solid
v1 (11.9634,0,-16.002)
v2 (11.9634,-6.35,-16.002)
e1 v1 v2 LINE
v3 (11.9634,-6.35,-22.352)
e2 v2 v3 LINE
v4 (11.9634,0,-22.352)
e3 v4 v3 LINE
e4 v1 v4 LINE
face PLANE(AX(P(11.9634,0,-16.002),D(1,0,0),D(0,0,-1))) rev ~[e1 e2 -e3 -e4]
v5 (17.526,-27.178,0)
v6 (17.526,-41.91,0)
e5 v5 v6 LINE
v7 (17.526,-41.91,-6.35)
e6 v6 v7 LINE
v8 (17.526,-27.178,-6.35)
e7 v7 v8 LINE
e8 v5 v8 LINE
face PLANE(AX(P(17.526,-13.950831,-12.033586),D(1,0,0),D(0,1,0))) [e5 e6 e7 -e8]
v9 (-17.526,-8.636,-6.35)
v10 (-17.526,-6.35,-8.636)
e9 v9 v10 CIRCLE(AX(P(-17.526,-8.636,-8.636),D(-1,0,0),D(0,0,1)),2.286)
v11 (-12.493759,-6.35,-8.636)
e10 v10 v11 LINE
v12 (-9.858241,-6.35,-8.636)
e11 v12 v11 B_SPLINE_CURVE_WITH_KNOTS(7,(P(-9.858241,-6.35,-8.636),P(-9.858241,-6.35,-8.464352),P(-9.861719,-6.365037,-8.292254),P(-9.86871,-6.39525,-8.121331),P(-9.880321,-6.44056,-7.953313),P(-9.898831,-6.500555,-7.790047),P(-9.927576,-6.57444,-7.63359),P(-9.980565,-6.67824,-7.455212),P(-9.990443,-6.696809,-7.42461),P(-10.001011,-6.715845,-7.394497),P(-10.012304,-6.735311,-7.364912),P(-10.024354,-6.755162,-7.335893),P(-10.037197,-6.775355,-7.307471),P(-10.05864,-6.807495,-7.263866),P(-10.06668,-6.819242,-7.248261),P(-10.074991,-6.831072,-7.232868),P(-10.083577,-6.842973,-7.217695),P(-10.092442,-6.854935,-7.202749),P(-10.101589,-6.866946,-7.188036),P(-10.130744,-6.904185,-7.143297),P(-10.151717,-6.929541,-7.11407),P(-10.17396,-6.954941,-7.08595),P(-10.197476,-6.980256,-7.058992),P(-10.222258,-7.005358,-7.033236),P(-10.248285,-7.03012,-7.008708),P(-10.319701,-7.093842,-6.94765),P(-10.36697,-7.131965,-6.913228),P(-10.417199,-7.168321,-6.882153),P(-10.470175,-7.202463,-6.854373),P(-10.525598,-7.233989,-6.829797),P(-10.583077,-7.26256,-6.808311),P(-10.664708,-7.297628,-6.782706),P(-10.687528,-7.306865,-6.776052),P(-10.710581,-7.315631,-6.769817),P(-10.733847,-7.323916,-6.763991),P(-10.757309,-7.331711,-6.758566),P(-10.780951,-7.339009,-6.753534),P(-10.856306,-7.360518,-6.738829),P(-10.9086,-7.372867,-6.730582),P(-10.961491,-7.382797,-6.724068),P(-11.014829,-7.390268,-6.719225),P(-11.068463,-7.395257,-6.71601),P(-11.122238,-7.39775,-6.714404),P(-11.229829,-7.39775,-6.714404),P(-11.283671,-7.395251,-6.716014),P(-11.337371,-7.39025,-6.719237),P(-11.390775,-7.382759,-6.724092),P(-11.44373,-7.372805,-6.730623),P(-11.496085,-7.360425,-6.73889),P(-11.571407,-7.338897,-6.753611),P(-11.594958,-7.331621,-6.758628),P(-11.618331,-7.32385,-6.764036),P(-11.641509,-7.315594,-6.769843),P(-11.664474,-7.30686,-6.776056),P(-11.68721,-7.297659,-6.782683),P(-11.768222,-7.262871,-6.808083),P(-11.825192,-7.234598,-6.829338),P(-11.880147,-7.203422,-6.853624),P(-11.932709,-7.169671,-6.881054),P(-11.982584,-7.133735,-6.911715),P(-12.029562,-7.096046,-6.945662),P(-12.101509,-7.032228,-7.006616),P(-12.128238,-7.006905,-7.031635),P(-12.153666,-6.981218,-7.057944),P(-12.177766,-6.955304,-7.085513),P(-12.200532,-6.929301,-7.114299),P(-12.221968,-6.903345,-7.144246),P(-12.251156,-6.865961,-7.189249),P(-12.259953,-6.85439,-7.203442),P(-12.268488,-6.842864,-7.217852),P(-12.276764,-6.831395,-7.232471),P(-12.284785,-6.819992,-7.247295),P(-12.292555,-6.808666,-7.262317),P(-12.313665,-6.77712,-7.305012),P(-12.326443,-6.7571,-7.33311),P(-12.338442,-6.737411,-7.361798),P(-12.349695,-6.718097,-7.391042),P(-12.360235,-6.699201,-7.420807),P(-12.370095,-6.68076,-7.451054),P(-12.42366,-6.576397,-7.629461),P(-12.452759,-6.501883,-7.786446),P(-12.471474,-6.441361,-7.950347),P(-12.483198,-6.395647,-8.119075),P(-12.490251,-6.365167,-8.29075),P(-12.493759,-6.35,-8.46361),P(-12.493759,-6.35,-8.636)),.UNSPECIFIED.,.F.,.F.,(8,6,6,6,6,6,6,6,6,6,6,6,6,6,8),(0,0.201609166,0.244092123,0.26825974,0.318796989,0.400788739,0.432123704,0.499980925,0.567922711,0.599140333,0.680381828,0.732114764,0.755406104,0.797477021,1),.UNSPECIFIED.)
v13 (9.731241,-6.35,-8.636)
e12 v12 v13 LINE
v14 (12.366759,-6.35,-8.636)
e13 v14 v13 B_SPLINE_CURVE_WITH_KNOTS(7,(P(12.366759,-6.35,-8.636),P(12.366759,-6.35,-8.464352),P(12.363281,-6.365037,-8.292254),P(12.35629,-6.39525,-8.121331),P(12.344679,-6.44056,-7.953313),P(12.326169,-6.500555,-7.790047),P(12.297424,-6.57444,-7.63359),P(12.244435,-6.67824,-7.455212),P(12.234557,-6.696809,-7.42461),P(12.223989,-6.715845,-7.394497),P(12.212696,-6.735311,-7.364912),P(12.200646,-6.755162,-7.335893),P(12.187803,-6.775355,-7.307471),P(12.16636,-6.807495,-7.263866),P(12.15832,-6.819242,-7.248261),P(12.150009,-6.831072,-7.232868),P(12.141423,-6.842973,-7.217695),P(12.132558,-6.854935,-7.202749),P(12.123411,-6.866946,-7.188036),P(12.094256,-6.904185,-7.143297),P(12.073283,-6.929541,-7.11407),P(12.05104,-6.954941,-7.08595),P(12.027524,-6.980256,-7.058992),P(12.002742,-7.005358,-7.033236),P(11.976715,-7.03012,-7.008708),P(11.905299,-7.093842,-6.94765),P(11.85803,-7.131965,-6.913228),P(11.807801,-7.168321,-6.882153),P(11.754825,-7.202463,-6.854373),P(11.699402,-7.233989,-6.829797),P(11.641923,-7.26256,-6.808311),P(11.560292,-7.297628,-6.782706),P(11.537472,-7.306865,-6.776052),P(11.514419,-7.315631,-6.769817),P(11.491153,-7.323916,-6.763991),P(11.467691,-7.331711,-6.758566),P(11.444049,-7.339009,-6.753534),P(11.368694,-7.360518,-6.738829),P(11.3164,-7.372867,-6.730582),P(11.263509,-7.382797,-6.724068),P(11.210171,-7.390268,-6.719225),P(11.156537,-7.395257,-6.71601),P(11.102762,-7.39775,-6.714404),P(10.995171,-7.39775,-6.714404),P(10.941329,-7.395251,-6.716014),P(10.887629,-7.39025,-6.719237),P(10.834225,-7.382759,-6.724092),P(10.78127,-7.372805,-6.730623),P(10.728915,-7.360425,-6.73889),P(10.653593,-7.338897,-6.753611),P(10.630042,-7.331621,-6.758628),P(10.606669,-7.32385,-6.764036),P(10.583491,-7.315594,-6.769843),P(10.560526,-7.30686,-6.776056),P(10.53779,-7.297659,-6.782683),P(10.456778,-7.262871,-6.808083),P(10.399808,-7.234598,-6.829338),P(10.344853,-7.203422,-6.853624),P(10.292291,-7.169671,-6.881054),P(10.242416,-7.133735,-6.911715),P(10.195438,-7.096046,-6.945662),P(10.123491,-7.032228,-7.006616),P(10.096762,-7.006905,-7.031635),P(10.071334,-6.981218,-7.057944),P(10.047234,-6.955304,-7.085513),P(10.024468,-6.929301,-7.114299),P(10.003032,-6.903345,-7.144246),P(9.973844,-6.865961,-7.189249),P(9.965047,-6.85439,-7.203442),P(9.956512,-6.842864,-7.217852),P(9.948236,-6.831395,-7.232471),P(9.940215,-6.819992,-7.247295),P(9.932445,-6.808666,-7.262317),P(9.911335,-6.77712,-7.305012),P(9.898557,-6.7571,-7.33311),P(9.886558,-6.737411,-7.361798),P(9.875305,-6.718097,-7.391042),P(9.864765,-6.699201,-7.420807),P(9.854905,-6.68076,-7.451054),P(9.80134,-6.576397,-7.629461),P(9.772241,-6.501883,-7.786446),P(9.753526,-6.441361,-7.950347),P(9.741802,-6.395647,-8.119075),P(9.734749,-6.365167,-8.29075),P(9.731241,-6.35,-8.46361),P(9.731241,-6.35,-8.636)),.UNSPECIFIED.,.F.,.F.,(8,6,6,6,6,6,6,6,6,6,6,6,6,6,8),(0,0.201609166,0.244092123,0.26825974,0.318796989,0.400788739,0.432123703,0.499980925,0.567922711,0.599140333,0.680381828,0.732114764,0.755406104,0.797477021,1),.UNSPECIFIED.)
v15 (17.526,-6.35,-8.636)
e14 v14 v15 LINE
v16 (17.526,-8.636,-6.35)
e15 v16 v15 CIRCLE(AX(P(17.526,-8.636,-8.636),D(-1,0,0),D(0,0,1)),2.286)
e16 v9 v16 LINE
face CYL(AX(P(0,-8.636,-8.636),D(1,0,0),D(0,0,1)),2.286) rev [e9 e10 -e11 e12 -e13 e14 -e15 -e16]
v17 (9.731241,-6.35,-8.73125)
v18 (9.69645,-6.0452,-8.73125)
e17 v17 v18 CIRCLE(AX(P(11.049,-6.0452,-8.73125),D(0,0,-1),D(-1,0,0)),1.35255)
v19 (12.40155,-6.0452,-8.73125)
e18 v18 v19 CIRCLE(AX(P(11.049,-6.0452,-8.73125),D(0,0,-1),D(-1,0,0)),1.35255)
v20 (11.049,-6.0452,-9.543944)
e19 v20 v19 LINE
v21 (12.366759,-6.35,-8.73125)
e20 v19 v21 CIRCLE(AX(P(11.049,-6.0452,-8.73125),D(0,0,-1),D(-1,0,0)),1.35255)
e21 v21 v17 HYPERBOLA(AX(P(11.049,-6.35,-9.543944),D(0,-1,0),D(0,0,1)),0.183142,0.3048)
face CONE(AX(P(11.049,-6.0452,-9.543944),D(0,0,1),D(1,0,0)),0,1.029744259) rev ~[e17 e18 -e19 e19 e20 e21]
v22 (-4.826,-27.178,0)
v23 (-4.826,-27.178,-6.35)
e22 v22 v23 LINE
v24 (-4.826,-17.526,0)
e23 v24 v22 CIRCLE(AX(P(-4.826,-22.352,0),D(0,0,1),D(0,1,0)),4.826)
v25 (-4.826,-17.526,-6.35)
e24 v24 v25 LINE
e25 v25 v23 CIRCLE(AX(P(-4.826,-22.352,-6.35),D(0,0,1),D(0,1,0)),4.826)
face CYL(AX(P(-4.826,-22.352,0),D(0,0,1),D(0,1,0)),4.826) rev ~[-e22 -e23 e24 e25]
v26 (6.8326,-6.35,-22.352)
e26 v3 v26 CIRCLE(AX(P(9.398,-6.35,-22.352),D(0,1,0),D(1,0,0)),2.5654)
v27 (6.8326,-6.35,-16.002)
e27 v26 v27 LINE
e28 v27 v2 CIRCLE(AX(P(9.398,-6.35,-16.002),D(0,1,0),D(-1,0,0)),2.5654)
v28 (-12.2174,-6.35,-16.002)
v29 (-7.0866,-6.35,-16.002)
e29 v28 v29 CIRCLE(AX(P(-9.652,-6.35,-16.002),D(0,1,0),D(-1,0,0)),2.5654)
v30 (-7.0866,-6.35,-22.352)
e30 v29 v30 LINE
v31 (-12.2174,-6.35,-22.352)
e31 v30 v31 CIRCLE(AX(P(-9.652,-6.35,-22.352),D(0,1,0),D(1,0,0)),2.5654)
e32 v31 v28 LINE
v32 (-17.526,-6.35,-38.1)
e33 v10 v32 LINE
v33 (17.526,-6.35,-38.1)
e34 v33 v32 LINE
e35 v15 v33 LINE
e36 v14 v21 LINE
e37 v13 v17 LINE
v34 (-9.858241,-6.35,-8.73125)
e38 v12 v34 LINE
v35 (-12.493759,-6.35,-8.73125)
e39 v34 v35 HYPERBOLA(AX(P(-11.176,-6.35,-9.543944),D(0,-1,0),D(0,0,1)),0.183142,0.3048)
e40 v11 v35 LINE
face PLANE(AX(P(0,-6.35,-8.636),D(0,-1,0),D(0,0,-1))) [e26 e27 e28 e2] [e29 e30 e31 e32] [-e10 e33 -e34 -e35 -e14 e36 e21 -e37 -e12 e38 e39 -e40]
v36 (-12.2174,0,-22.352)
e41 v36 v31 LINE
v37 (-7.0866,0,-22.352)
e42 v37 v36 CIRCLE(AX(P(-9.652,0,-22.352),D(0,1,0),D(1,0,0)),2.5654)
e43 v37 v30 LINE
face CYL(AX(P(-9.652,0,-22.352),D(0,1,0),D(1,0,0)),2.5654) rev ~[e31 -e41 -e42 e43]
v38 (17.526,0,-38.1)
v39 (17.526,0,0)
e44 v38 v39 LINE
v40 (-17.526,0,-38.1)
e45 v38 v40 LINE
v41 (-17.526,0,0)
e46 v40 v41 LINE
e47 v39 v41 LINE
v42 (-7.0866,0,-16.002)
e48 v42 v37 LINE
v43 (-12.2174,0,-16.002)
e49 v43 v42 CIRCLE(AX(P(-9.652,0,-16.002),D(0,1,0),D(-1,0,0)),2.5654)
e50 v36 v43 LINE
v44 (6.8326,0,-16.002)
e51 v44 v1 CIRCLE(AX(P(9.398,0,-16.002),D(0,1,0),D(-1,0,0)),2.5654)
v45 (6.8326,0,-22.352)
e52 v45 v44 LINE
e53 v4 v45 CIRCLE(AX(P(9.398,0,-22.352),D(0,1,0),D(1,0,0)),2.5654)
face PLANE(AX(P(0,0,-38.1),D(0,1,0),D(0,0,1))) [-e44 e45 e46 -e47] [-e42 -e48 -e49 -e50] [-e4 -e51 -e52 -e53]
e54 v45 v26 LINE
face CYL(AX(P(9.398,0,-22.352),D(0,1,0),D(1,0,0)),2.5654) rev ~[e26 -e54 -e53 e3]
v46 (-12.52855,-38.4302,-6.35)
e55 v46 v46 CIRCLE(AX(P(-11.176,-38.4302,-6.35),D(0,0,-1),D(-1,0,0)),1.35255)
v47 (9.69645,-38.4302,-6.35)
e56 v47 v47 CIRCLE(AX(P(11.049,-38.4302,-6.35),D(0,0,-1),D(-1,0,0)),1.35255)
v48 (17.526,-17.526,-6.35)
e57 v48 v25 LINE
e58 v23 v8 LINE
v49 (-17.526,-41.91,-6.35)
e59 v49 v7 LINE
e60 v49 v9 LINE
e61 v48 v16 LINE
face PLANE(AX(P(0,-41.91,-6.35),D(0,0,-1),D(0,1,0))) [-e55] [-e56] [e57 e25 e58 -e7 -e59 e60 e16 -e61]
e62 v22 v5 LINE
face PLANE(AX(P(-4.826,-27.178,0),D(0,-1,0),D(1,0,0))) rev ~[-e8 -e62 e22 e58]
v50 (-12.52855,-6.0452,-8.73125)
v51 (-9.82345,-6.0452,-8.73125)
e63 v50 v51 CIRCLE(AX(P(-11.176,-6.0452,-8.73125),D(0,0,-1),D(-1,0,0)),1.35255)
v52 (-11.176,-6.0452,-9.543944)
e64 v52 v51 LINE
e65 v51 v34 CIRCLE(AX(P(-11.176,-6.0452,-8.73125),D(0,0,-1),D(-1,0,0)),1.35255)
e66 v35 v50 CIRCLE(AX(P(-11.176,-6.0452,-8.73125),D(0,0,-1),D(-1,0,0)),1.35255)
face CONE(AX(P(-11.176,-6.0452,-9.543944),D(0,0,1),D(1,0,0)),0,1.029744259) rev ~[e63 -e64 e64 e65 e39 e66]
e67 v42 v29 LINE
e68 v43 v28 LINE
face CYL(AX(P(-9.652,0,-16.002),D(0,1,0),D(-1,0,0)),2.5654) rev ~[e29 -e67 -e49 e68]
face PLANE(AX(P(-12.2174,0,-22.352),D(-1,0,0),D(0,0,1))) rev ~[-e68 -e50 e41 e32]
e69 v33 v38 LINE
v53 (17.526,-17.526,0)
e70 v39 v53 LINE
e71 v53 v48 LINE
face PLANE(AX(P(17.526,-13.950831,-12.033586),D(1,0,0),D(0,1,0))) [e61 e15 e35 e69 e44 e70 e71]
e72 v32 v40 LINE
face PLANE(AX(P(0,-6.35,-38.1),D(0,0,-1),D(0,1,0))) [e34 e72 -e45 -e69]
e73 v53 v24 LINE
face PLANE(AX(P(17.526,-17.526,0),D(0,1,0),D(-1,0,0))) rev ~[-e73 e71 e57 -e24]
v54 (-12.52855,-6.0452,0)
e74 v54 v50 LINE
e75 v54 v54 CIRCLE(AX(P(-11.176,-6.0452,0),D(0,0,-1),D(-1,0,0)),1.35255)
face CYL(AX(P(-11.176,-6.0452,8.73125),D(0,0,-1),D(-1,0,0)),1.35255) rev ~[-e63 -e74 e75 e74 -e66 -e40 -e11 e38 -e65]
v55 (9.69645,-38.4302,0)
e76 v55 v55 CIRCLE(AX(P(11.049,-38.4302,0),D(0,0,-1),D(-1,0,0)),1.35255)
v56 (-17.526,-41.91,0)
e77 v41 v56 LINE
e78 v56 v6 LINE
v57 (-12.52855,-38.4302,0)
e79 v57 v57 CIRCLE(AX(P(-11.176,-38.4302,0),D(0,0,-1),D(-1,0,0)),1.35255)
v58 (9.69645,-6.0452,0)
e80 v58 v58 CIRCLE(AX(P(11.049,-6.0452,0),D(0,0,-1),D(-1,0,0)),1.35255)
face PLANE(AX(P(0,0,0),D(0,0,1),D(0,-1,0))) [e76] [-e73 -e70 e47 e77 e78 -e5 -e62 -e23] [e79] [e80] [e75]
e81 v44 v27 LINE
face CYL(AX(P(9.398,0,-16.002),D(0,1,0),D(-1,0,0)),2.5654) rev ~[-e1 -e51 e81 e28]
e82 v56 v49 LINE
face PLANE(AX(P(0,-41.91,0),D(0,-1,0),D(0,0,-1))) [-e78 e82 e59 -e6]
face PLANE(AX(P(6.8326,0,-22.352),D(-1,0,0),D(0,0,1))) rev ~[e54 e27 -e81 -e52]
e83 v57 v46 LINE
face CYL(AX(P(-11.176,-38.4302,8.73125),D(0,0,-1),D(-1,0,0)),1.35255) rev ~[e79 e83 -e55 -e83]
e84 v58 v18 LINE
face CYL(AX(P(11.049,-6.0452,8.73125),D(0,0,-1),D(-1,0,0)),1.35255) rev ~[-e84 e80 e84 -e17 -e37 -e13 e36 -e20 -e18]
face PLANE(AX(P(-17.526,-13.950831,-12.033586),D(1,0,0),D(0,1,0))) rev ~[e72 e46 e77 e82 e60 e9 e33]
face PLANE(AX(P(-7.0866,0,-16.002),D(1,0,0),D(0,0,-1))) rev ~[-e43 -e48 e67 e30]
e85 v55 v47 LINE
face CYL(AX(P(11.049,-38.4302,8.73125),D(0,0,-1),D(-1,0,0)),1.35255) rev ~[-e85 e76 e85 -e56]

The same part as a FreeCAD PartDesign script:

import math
import FreeCAD as App
import Part
import Sketcher
Q = App.Units.Quantity

doc = App.newDocument("Part")
body = doc.addObject("PartDesign::Body", "Body")

sketch1 = body.newObject("Sketcher::SketchObject", "Sketch")
sketch1.AttachmentSupport = (doc.getObject("YZ_Plane"), [""])
sketch1.MapMode = "FlatFace"
sketch1.addGeometry(Part.LineSegment(App.Vector(0, 0, 0), App.Vector(-41.9, 0, 0)), False)
sketch1.addGeometry(Part.LineSegment(App.Vector(-41.9, 0, 0), App.Vector(-41.9, -6.3, 0)), False)
sketch1.addGeometry(Part.LineSegment(App.Vector(-41.9, -6.3, 0), App.Vector(-8.6, -6.3, 0)), False)
sketch1.addGeometry(Part.ArcOfCircle(Part.Circle(App.Vector(-8.6, -8.6, 0), App.Vector(0, 0, 1), 2.3), math.radians(0), math.radians(90)), False)
sketch1.addGeometry(Part.LineSegment(App.Vector(-6.3, -8.6, 0), App.Vector(-6.3, -38.1, 0)), False)
sketch1.addGeometry(Part.LineSegment(App.Vector(-6.3, -38.1, 0), App.Vector(0, -38.1, 0)), False)
sketch1.addGeometry(Part.LineSegment(App.Vector(0, -38.1, 0), App.Vector(0, 0, 0)), False)
sketch1.addConstraint(Sketcher.Constraint("Coincident", 0, 2, 1, 1))
sketch1.addConstraint(Sketcher.Constraint("Coincident", 1, 2, 2, 1))
sketch1.addConstraint(Sketcher.Constraint("Tangent", 2, 2, 3, 2))
sketch1.addConstraint(Sketcher.Constraint("Tangent", 3, 1, 4, 1))
sketch1.addConstraint(Sketcher.Constraint("Coincident", 4, 2, 5, 1))
sketch1.addConstraint(Sketcher.Constraint("Coincident", 5, 2, 6, 1))
sketch1.addConstraint(Sketcher.Constraint("Coincident", 6, 2, 0, 1))
sketch1.addConstraint(Sketcher.Constraint("Horizontal", 0))
sketch1.addConstraint(Sketcher.Constraint("Vertical", 1))
sketch1.addConstraint(Sketcher.Constraint("Horizontal", 2))
sketch1.addConstraint(Sketcher.Constraint("Vertical", 4))
sketch1.addConstraint(Sketcher.Constraint("Horizontal", 5))
sketch1.addConstraint(Sketcher.Constraint("Vertical", 6))
sketch1.addConstraint(Sketcher.Constraint("Coincident", 6, 2, -1, 1))
sketch1.addConstraint(Sketcher.Constraint("Equal", 5, 1))
sketch1.addConstraint(Sketcher.Constraint("Radius", 3, Q("0.09 in")))
sketch1.addConstraint(Sketcher.Constraint("DistanceY", 6, 1, 6, 2, Q("1.5 in")))
sketch1.addConstraint(Sketcher.Constraint("DistanceX", 0, 2, 0, 1, Q("1.65 in")))
sketch1.addConstraint(Sketcher.Constraint("DistanceX", 2, 1, 2, 2, Q("1.31 in")))
pad1 = body.newObject("PartDesign::Pad", "Pad")
pad1.Profile = sketch1
pad1.Length = Q("1.38 in")
pad1.Midplane = True

sketch2 = body.newObject("Sketcher::SketchObject", "Sketch001")
sketch2.AttachmentSupport = (doc.getObject("XY_Plane"), [""])
sketch2.MapMode = "FlatFace"
sketch2.addGeometry(Part.LineSegment(App.Vector(17.5, -27.2, 0), App.Vector(17.5, -17.5, 0)), False)
sketch2.addGeometry(Part.LineSegment(App.Vector(17.5, -17.5, 0), App.Vector(-4.8, -17.5, 0)), False)
sketch2.addGeometry(Part.ArcOfCircle(Part.Circle(App.Vector(-4.8, -22.4, 0), App.Vector(0, 0, 1), 4.8), math.radians(90), math.radians(270)), False)
sketch2.addGeometry(Part.LineSegment(App.Vector(-4.8, -27.2, 0), App.Vector(17.5, -27.2, 0)), False)
sketch2.addConstraint(Sketcher.Constraint("Coincident", 0, 2, 1, 1))
sketch2.addConstraint(Sketcher.Constraint("Tangent", 1, 2, 2, 1))
sketch2.addConstraint(Sketcher.Constraint("Tangent", 2, 2, 3, 1))
sketch2.addConstraint(Sketcher.Constraint("Coincident", 3, 2, 0, 1))
sketch2.addConstraint(Sketcher.Constraint("Vertical", 0))
sketch2.addConstraint(Sketcher.Constraint("Horizontal", 1))
sketch2.addConstraint(Sketcher.Constraint("Horizontal", 3))
sketch2.addConstraint(Sketcher.Constraint("Radius", 2, Q("0.19 in")))
sketch2.addConstraint(Sketcher.Constraint("DistanceX", 1, 2, 1, 1, Q("0.88 in")))
sketch2.addConstraint(Sketcher.Constraint("DistanceX", 2, 3, -1, 1, Q("0.19 in")))
sketch2.addConstraint(Sketcher.Constraint("DistanceY", 2, 3, -1, 1, Q("0.88 in")))
pocket1 = body.newObject("PartDesign::Pocket", "Pocket")
pocket1.Profile = sketch2
pocket1.Type = "ThroughAll"

sketch3 = body.newObject("Sketcher::SketchObject", "Sketch002")
sketch3.AttachmentSupport = (doc.getObject("XY_Plane"), [""])
sketch3.MapMode = "FlatFace"
sketch3.addGeometry(Part.Circle(App.Vector(-11.2, -6, 0), App.Vector(0, 0, 1), 1.4), False)
sketch3.addGeometry(Part.Circle(App.Vector(11, -6, 0), App.Vector(0, 0, 1), 1.4), False)
sketch3.addGeometry(Part.Circle(App.Vector(-11.2, -38.4, 0), App.Vector(0, 0, 1), 1.4), False)
sketch3.addGeometry(Part.Circle(App.Vector(11, -38.4, 0), App.Vector(0, 0, 1), 1.4), False)
sketch3.addConstraint(Sketcher.Constraint("Equal", 0, 1))
sketch3.addConstraint(Sketcher.Constraint("Equal", 1, 2))
sketch3.addConstraint(Sketcher.Constraint("Equal", 2, 3))
sketch3.addConstraint(Sketcher.Constraint("Horizontal", 0, 3, 1, 3))
sketch3.addConstraint(Sketcher.Constraint("Horizontal", 2, 3, 3, 3))
sketch3.addConstraint(Sketcher.Constraint("Vertical", 0, 3, 2, 3))
sketch3.addConstraint(Sketcher.Constraint("Vertical", 1, 3, 3, 3))
sketch3.addConstraint(Sketcher.Constraint("Diameter", 0, Q("0.1065 in")))
sketch3.addConstraint(Sketcher.Constraint("DistanceX", 0, 3, -1, 1, Q("0.44 in")))
sketch3.addConstraint(Sketcher.Constraint("DistanceY", 0, 3, -1, 1, Q("0.238 in")))
sketch3.addConstraint(Sketcher.Constraint("DistanceX", -1, 1, 1, 3, Q("0.435 in")))
sketch3.addConstraint(Sketcher.Constraint("DistanceY", 2, 3, -1, 1, Q("1.513 in")))
doc.recompute()
hole = body.newObject("PartDesign::Hole", "Hole")
hole.Profile = sketch3
hole.ThreadType = "None"
hole.Diameter = Q("0.1065 in")
hole.DepthType = "Dimension"
hole.Depth = Q("0.34375 in")
hole.DrillPoint = "Angled"
hole.DrillPointAngle = 118

sketch4 = body.newObject("Sketcher::SketchObject", "Sketch003")
sketch4.AttachmentSupport = (doc.getObject("XZ_Plane"), [""])
sketch4.MapMode = "FlatFace"
sketch4.addGeometry(Part.LineSegment(App.Vector(-12.2, -22.4, 0), App.Vector(-12.2, -16, 0)), False)
sketch4.addGeometry(Part.ArcOfCircle(Part.Circle(App.Vector(-9.7, -16, 0), App.Vector(0, 0, 1), 2.6), math.radians(0), math.radians(180)), False)
sketch4.addGeometry(Part.LineSegment(App.Vector(-7.1, -16, 0), App.Vector(-7.1, -22.4, 0)), False)
sketch4.addGeometry(Part.ArcOfCircle(Part.Circle(App.Vector(-9.7, -22.4, 0), App.Vector(0, 0, 1), 2.6), math.radians(180), math.radians(360)), False)
sketch4.addGeometry(Part.LineSegment(App.Vector(6.8, -22.4, 0), App.Vector(6.8, -16, 0)), False)
sketch4.addGeometry(Part.ArcOfCircle(Part.Circle(App.Vector(9.4, -16, 0), App.Vector(0, 0, 1), 2.6), math.radians(0), math.radians(180)), False)
sketch4.addGeometry(Part.LineSegment(App.Vector(12, -16, 0), App.Vector(12, -22.4, 0)), False)
sketch4.addGeometry(Part.ArcOfCircle(Part.Circle(App.Vector(9.4, -22.4, 0), App.Vector(0, 0, 1), 2.6), math.radians(180), math.radians(360)), False)
sketch4.addConstraint(Sketcher.Constraint("Tangent", 0, 2, 1, 2))
sketch4.addConstraint(Sketcher.Constraint("Tangent", 1, 1, 2, 1))
sketch4.addConstraint(Sketcher.Constraint("Tangent", 2, 2, 3, 2))
sketch4.addConstraint(Sketcher.Constraint("Tangent", 3, 1, 0, 1))
sketch4.addConstraint(Sketcher.Constraint("Tangent", 4, 2, 5, 2))
sketch4.addConstraint(Sketcher.Constraint("Tangent", 5, 1, 6, 1))
sketch4.addConstraint(Sketcher.Constraint("Tangent", 6, 2, 7, 2))
sketch4.addConstraint(Sketcher.Constraint("Tangent", 7, 1, 4, 1))
sketch4.addConstraint(Sketcher.Constraint("Vertical", 0))
sketch4.addConstraint(Sketcher.Constraint("Vertical", 2))
sketch4.addConstraint(Sketcher.Constraint("Vertical", 4))
sketch4.addConstraint(Sketcher.Constraint("Vertical", 6))
sketch4.addConstraint(Sketcher.Constraint("Equal", 3, 5))
sketch4.addConstraint(Sketcher.Constraint("Horizontal", 1, 3, 5, 3))
sketch4.addConstraint(Sketcher.Constraint("Horizontal", 3, 3, 7, 3))
sketch4.addConstraint(Sketcher.Constraint("Radius", 1, Q("0.101 in")))
sketch4.addConstraint(Sketcher.Constraint("DistanceY", 0, 1, 0, 2, Q("0.25 in")))
sketch4.addConstraint(Sketcher.Constraint("DistanceX", 1, 3, -1, 1, Q("0.38 in")))
sketch4.addConstraint(Sketcher.Constraint("DistanceY", 1, 3, -1, 1, Q("0.63 in")))
sketch4.addConstraint(Sketcher.Constraint("DistanceX", -1, 1, 5, 3, Q("0.37 in")))
pocket2 = body.newObject("PartDesign::Pocket", "Pocket001")
pocket2.Profile = sketch4
pocket2.Type = "ThroughAll"
pocket2.Reversed = True

doc.recompute()
